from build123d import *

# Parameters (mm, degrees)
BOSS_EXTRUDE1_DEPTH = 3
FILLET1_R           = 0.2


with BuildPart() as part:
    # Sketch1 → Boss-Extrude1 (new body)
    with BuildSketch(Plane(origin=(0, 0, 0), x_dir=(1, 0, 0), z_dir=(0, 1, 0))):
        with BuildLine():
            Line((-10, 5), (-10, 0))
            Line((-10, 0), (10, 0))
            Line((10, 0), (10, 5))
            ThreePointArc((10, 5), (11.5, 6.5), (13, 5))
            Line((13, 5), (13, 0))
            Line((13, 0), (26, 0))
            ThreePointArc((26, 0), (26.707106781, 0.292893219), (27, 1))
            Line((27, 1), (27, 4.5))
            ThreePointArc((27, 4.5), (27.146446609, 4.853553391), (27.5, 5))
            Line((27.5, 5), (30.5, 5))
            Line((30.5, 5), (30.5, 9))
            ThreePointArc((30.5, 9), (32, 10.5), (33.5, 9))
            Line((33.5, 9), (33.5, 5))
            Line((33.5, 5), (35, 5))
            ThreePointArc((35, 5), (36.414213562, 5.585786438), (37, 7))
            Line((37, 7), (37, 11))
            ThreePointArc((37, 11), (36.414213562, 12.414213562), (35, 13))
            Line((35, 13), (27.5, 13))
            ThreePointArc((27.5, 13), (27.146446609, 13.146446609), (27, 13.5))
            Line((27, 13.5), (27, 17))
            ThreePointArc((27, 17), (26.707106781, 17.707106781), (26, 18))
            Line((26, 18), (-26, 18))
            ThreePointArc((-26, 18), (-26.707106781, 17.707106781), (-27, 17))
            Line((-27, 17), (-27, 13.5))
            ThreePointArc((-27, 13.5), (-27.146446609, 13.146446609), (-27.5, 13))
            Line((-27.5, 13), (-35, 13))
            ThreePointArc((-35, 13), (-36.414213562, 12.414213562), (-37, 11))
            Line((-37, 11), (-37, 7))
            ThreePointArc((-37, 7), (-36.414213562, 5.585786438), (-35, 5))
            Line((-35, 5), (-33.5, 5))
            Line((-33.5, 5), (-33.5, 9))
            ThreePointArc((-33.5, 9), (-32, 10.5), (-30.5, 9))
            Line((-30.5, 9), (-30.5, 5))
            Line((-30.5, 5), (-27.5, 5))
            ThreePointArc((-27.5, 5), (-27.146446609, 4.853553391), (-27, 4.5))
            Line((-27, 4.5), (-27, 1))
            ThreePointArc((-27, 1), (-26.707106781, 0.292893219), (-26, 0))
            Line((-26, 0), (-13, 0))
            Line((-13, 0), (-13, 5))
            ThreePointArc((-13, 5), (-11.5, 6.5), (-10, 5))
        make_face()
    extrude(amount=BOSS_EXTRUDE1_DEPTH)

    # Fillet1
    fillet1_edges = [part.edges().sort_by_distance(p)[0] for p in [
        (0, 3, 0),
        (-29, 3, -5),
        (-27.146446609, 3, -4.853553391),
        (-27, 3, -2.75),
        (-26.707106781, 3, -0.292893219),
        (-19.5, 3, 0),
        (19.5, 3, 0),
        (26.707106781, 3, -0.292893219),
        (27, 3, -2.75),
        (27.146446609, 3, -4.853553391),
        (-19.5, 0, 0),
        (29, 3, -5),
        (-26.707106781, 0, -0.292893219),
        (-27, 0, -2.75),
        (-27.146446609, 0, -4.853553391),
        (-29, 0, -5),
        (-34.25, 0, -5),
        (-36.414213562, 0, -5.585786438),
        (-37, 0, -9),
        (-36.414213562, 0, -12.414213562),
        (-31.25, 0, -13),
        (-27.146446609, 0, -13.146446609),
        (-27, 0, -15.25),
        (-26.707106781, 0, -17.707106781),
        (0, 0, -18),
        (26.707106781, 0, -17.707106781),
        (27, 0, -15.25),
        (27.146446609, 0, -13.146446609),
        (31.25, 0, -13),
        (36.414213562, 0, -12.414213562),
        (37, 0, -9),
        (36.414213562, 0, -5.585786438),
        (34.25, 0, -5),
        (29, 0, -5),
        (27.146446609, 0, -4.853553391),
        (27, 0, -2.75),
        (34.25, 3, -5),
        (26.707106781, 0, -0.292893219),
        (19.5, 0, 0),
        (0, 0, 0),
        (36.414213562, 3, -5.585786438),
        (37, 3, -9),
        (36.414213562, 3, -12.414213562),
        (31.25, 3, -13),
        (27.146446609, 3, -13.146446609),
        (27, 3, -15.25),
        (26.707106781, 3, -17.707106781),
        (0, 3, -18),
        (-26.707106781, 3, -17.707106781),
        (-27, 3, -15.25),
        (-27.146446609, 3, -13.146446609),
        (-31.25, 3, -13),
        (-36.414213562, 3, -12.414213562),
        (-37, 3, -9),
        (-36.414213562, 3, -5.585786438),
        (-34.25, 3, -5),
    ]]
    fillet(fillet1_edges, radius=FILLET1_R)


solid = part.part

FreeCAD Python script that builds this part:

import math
import FreeCAD as App
import Part
import Sketcher

V = App.Vector
Q = App.Units.Quantity


def edges_at(feature, points):
    """Names of the edges that pass closest to the given points."""
    edges = feature.Shape.Edges
    near = lambda p: min(range(len(edges)), key=lambda i: edges[i].distToShape(Part.Vertex(*p))[0])
    return sorted({f"Edge{near(p) + 1}" for p in points})

doc = App.newDocument("Part")
body = doc.addObject("PartDesign::Body", "Body")

# Sketch on XZ plane
sketch1 = body.newObject("Sketcher::SketchObject", "Sketch")
sketch1.AttachmentSupport = (doc.getObject("XZ_Plane"), [""])
sketch1.MapMode = "FlatFace"
sketch1.addGeometry(Part.LineSegment(V(-10, -5, 0), V(-10, 0, 0)), False)
sketch1.addGeometry(Part.LineSegment(V(-10, 0, 0), V(10, 0, 0)), False)
sketch1.addGeometry(Part.LineSegment(V(10, 0, 0), V(10, -5, 0)), False)
sketch1.addGeometry(Part.ArcOfCircle(Part.Circle(V(11.5, -5, 0), V(0, 0, 1), 1.5), math.radians(180), math.radians(360)), False)
sketch1.addGeometry(Part.LineSegment(V(13, -5, 0), V(13, 0, 0)), False)
sketch1.addGeometry(Part.LineSegment(V(13, 0, 0), V(26, 0, 0)), False)
sketch1.addGeometry(Part.ArcOfCircle(Part.Circle(V(26, -1, 0), V(0, 0, 1), 1), math.radians(0), math.radians(90)), False)
sketch1.addGeometry(Part.LineSegment(V(27, -1, 0), V(27, -4.5, 0)), False)
sketch1.addGeometry(Part.ArcOfCircle(Part.Circle(V(27.5, -4.5, 0), V(0, 0, 1), 0.5), math.radians(180), math.radians(270)), False)
sketch1.addGeometry(Part.LineSegment(V(27.5, -5, 0), V(30.5, -5, 0)), False)
sketch1.addGeometry(Part.LineSegment(V(30.5, -5, 0), V(30.5, -9, 0)), False)
sketch1.addGeometry(Part.ArcOfCircle(Part.Circle(V(32, -9, 0), V(0, 0, 1), 1.5), math.radians(180), math.radians(360)), False)
sketch1.addGeometry(Part.LineSegment(V(33.5, -9, 0), V(33.5, -5, 0)), False)
sketch1.addGeometry(Part.LineSegment(V(33.5, -5, 0), V(35, -5, 0)), False)
sketch1.addGeometry(Part.ArcOfCircle(Part.Circle(V(35, -7, 0), V(0, 0, 1), 2), math.radians(0), math.radians(90)), False)
sketch1.addGeometry(Part.LineSegment(V(37, -7, 0), V(37, -11, 0)), False)
sketch1.addGeometry(Part.ArcOfCircle(Part.Circle(V(35, -11, 0), V(0, 0, 1), 2), math.radians(-90), math.radians(0)), False)
sketch1.addGeometry(Part.LineSegment(V(35, -13, 0), V(27.5, -13, 0)), False)
sketch1.addGeometry(Part.ArcOfCircle(Part.Circle(V(27.5, -13.5, 0), V(0, 0, 1), 0.5), math.radians(90), math.radians(180)), False)
sketch1.addGeometry(Part.LineSegment(V(27, -13.5, 0), V(27, -17, 0)), False)
sketch1.addGeometry(Part.ArcOfCircle(Part.Circle(V(26, -17, 0), V(0, 0, 1), 1), math.radians(-90), math.radians(0)), False)
sketch1.addGeometry(Part.LineSegment(V(26, -18, 0), V(-26, -18, 0)), False)
sketch1.addGeometry(Part.ArcOfCircle(Part.Circle(V(-26, -17, 0), V(0, 0, 1), 1), math.radians(-180), math.radians(-90)), False)
sketch1.addGeometry(Part.LineSegment(V(-27, -17, 0), V(-27, -13.5, 0)), False)
sketch1.addGeometry(Part.ArcOfCircle(Part.Circle(V(-27.5, -13.5, 0), V(0, 0, 1), 0.5), math.radians(0), math.radians(90)), False)
sketch1.addGeometry(Part.LineSegment(V(-27.5, -13, 0), V(-35, -13, 0)), False)
sketch1.addGeometry(Part.ArcOfCircle(Part.Circle(V(-35, -11, 0), V(0, 0, 1), 2), math.radians(-180), math.radians(-90)), False)
sketch1.addGeometry(Part.LineSegment(V(-37, -11, 0), V(-37, -7, 0)), False)
sketch1.addGeometry(Part.ArcOfCircle(Part.Circle(V(-35, -7, 0), V(0, 0, 1), 2), math.radians(90), math.radians(180)), False)
sketch1.addGeometry(Part.LineSegment(V(-35, -5, 0), V(-33.5, -5, 0)), False)
sketch1.addGeometry(Part.LineSegment(V(-33.5, -5, 0), V(-33.5, -9, 0)), False)
sketch1.addGeometry(Part.ArcOfCircle(Part.Circle(V(-32, -9, 0), V(0, 0, 1), 1.5), math.radians(180), math.radians(360)), False)
sketch1.addGeometry(Part.LineSegment(V(-30.5, -9, 0), V(-30.5, -5, 0)), False)
sketch1.addGeometry(Part.LineSegment(V(-30.5, -5, 0), V(-27.5, -5, 0)), False)
sketch1.addGeometry(Part.ArcOfCircle(Part.Circle(V(-27.5, -4.5, 0), V(0, 0, 1), 0.5), math.radians(-90), math.radians(0)), False)
sketch1.addGeometry(Part.LineSegment(V(-27, -4.5, 0), V(-27, -1, 0)), False)
sketch1.addGeometry(Part.ArcOfCircle(Part.Circle(V(-26, -1, 0), V(0, 0, 1), 1), math.radians(90), math.radians(180)), False)
sketch1.addGeometry(Part.LineSegment(V(-26, 0, 0), V(-13, 0, 0)), False)
sketch1.addGeometry(Part.LineSegment(V(-13, 0, 0), V(-13, -5, 0)), False)
sketch1.addGeometry(Part.ArcOfCircle(Part.Circle(V(-11.5, -5, 0), V(0, 0, 1), 1.5), math.radians(180), math.radians(360)), False)
sketch1.addConstraint(Sketcher.Constraint("Coincident", 0, 2, 1, 1))
sketch1.addConstraint(Sketcher.Constraint("Coincident", 1, 2, 2, 1))
sketch1.addConstraint(Sketcher.Constraint("Tangent", 2, 2, 3, 1))
sketch1.addConstraint(Sketcher.Constraint("Tangent", 3, 2, 4, 1))
sketch1.addConstraint(Sketcher.Constraint("Coincident", 4, 2, 5, 1))
sketch1.addConstraint(Sketcher.Constraint("Tangent", 5, 2, 6, 2))
sketch1.addConstraint(Sketcher.Constraint("Tangent", 6, 1, 7, 1))
sketch1.addConstraint(Sketcher.Constraint("Tangent", 7, 2, 8, 1))
sketch1.addConstraint(Sketcher.Constraint("Tangent", 8, 2, 9, 1))
sketch1.addConstraint(Sketcher.Constraint("Coincident", 9, 2, 10, 1))
sketch1.addConstraint(Sketcher.Constraint("Tangent", 10, 2, 11, 1))
sketch1.addConstraint(Sketcher.Constraint("Tangent", 11, 2, 12, 1))
sketch1.addConstraint(Sketcher.Constraint("Coincident", 12, 2, 13, 1))
sketch1.addConstraint(Sketcher.Constraint("Tangent", 13, 2, 14, 2))
sketch1.addConstraint(Sketcher.Constraint("Tangent", 14, 1, 15, 1))
sketch1.addConstraint(Sketcher.Constraint("Tangent", 15, 2, 16, 2))
sketch1.addConstraint(Sketcher.Constraint("Tangent", 16, 1, 17, 1))
sketch1.addConstraint(Sketcher.Constraint("Tangent", 17, 2, 18, 1))
sketch1.addConstraint(Sketcher.Constraint("Tangent", 18, 2, 19, 1))
sketch1.addConstraint(Sketcher.Constraint("Tangent", 19, 2, 20, 2))
sketch1.addConstraint(Sketcher.Constraint("Tangent", 20, 1, 21, 1))
sketch1.addConstraint(Sketcher.Constraint("Tangent", 21, 2, 22, 2))
sketch1.addConstraint(Sketcher.Constraint("Tangent", 22, 1, 23, 1))
sketch1.addConstraint(Sketcher.Constraint("Tangent", 23, 2, 24, 1))
sketch1.addConstraint(Sketcher.Constraint("Tangent", 24, 2, 25, 1))
sketch1.addConstraint(Sketcher.Constraint("Tangent", 25, 2, 26, 2))
sketch1.addConstraint(Sketcher.Constraint("Tangent", 26, 1, 27, 1))
sketch1.addConstraint(Sketcher.Constraint("Tangent", 27, 2, 28, 2))
sketch1.addConstraint(Sketcher.Constraint("Tangent", 28, 1, 29, 1))
sketch1.addConstraint(Sketcher.Constraint("Coincident", 29, 2, 30, 1))
sketch1.addConstraint(Sketcher.Constraint("Tangent", 30, 2, 31, 1))
sketch1.addConstraint(Sketcher.Constraint("Tangent", 31, 2, 32, 1))
sketch1.addConstraint(Sketcher.Constraint("Coincident", 32, 2, 33, 1))
sketch1.addConstraint(Sketcher.Constraint("Tangent", 33, 2, 34, 1))
sketch1.addConstraint(Sketcher.Constraint("Tangent", 34, 2, 35, 1))
sketch1.addConstraint(Sketcher.Constraint("Tangent", 35, 2, 36, 2))
sketch1.addConstraint(Sketcher.Constraint("Tangent", 36, 1, 37, 1))
sketch1.addConstraint(Sketcher.Constraint("Coincident", 37, 2, 38, 1))
sketch1.addConstraint(Sketcher.Constraint("Tangent", 38, 2, 39, 1))
sketch1.addConstraint(Sketcher.Constraint("Tangent", 39, 2, 0, 1))
sketch1.addConstraint(Sketcher.Constraint("Vertical", 0))
sketch1.addConstraint(Sketcher.Constraint("Horizontal", 1))
sketch1.addConstraint(Sketcher.Constraint("Vertical", 2))
sketch1.addConstraint(Sketcher.Constraint("Vertical", 4))
sketch1.addConstraint(Sketcher.Constraint("Horizontal", 5))
sketch1.addConstraint(Sketcher.Constraint("Vertical", 7))
sketch1.addConstraint(Sketcher.Constraint("Horizontal", 9))
sketch1.addConstraint(Sketcher.Constraint("Vertical", 10))
sketch1.addConstraint(Sketcher.Constraint("Vertical", 12))
sketch1.addConstraint(Sketcher.Constraint("Horizontal", 13))
sketch1.addConstraint(Sketcher.Constraint("Vertical", 15))
sketch1.addConstraint(Sketcher.Constraint("Horizontal", 17))
sketch1.addConstraint(Sketcher.Constraint("Vertical", 19))
sketch1.addConstraint(Sketcher.Constraint("Horizontal", 21))
sketch1.addConstraint(Sketcher.Constraint("Vertical", 23))
sketch1.addConstraint(Sketcher.Constraint("Horizontal", 25))
sketch1.addConstraint(Sketcher.Constraint("Vertical", 27))
sketch1.addConstraint(Sketcher.Constraint("Horizontal", 29))
sketch1.addConstraint(Sketcher.Constraint("Vertical", 30))
sketch1.addConstraint(Sketcher.Constraint("Vertical", 32))
sketch1.addConstraint(Sketcher.Constraint("Horizontal", 33))
sketch1.addConstraint(Sketcher.Constraint("Vertical", 35))
sketch1.addConstraint(Sketcher.Constraint("Horizontal", 37))
sketch1.addConstraint(Sketcher.Constraint("Vertical", 38))
sketch1.addConstraint(Sketcher.Constraint("Equal", 3, 11))
sketch1.addConstraint(Sketcher.Constraint("Equal", 14, 16))
sketch1.addConstraint(Sketcher.Constraint("Equal", 8, 18))
sketch1.addConstraint(Sketcher.Constraint("Equal", 6, 20))
sketch1.addConstraint(Sketcher.Constraint("Equal", 20, 22))
sketch1.addConstraint(Sketcher.Constraint("Equal", 18, 24))
sketch1.addConstraint(Sketcher.Constraint("Equal", 16, 26))
sketch1.addConstraint(Sketcher.Constraint("Equal", 26, 28))
sketch1.addConstraint(Sketcher.Constraint("Equal", 11, 31))
sketch1.addConstraint(Sketcher.Constraint("Equal", 24, 34))
sketch1.addConstraint(Sketcher.Constraint("Equal", 22, 36))
sketch1.addConstraint(Sketcher.Constraint("Equal", 31, 39))
sketch1.addConstraint(Sketcher.Constraint("Symmetric", 0, 2, 1, 2, -1, 1))
sketch1.addConstraint(Sketcher.Constraint("Symmetric", 5, 2, 36, 1, -1, 1))
sketch1.addConstraint(Sketcher.Constraint("Symmetric", 18, 3, 24, 3, -2))
sketch1.addConstraint(Sketcher.Constraint("Symmetric", 14, 3, 28, 3, -2))
sketch1.addConstraint(Sketcher.Constraint("Symmetric", 11, 3, 31, 3, -2))
sketch1.addConstraint(Sketcher.Constraint("PointOnObject", 4, 2, -1))
sketch1.addConstraint(Sketcher.Constraint("Horizontal", 8, 3, 34, 3))
sketch1.addConstraint(Sketcher.Constraint("Horizontal", 3, 3, 39, 3))
sketch1.addConstraint(Sketcher.Constraint("Horizontal", 3, 2, 8, 2))
sketch1.addConstraint(Sketcher.Constraint("Horizontal", 9, 2, 12, 2))
sketch1.addConstraint(Sketcher.Constraint("Vertical", 8, 3, 18, 3))
sketch1.addConstraint(Sketcher.Constraint("Equal", 12, 15))
sketch1.addConstraint(Sketcher.Constraint("Equal", 7, 19))
sketch1.addConstraint(Sketcher.Constraint("Radius", 6, Q("1 mm")))
sketch1.addConstraint(Sketcher.Constraint("Radius", 14, Q("2 mm")))
sketch1.addConstraint(Sketcher.Constraint("Radius", 3, Q("1.5 mm")))
sketch1.addConstraint(Sketcher.Constraint("Radius", 8, Q("0.5 mm")))
sketch1.addConstraint(Sketcher.Constraint("DistanceX", 1, 1, 1, 2, Q("20 mm")))
sketch1.addConstraint(Sketcher.Constraint("DistanceX", 5, 1, 5, 2, Q("13 mm")))
sketch1.addConstraint(Sketcher.Constraint("DistanceX", 9, 1, 9, 2, Q("3 mm")))
sketch1.addConstraint(Sketcher.Constraint("DistanceY", 0, 1, 0, 2, Q("5 mm")))
sketch1.addConstraint(Sketcher.Constraint("DistanceY", 10, 2, 10, 1, Q("4 mm")))
sketch1.addConstraint(Sketcher.Constraint("DistanceX", 13, 1, 13, 2, Q("1.5 mm")))
pad1 = body.newObject("PartDesign::Pad", "Pad")
pad1.Profile = sketch1
pad1.Length = 3
pad1.Reversed = True
doc.recompute()

fillet = body.newObject("PartDesign::Fillet", "Fillet")
fillet.Base = (pad1, edges_at(pad1, [
    (0, 3, 0),
    (-29, 3, -5),
    (-27.146, 3, -4.854),
    (-27, 3, -2.75),
    (-26.707, 3, -0.293),
    (-19.5, 3, 0),
    (19.5, 3, 0),
    (26.707, 3, -0.293),
    (27, 3, -2.75),
    (27.146, 3, -4.854),
    (-19.5, 0, 0),
    (29, 3, -5),
    (-26.707, 0, -0.293),
    (-27, 0, -2.75),
    (-27.146, 0, -4.854),
    (-29, 0, -5),
    (-34.25, 0, -5),
    (-36.414, 0, -5.586),
    (-37, 0, -9),
    (-36.414, 0, -12.414),
    (-31.25, 0, -13),
    (-27.146, 0, -13.146),
    (-27, 0, -15.25),
    (-26.707, 0, -17.707),
    (0, 0, -18),
    (26.707, 0, -17.707),
    (27, 0, -15.25),
    (27.146, 0, -13.146),
    (31.25, 0, -13),
    (36.414, 0, -12.414),
    (37, 0, -9),
    (36.414, 0, -5.586),
    (34.25, 0, -5),
    (29, 0, -5),
    (27.146, 0, -4.854),
    (27, 0, -2.75),
    (34.25, 3, -5),
    (26.707, 0, -0.293),
    (19.5, 0, 0),
    (0, 0, 0),
    (36.414, 3, -5.586),
    (37, 3, -9),
    (36.414, 3, -12.414),
    (31.25, 3, -13),
    (27.146, 3, -13.146),
    (27, 3, -15.25),
    (26.707, 3, -17.707),
    (0, 3, -18),
    (-26.707, 3, -17.707),
    (-27, 3, -15.25),
    (-27.146, 3, -13.146),
    (-31.25, 3, -13),
    (-36.414, 3, -12.414),
    (-37, 3, -9),
    (-36.414, 3, -5.586),
    (-34.25, 3, -5),
]))
fillet.Radius = 0.2

doc.recompute()
